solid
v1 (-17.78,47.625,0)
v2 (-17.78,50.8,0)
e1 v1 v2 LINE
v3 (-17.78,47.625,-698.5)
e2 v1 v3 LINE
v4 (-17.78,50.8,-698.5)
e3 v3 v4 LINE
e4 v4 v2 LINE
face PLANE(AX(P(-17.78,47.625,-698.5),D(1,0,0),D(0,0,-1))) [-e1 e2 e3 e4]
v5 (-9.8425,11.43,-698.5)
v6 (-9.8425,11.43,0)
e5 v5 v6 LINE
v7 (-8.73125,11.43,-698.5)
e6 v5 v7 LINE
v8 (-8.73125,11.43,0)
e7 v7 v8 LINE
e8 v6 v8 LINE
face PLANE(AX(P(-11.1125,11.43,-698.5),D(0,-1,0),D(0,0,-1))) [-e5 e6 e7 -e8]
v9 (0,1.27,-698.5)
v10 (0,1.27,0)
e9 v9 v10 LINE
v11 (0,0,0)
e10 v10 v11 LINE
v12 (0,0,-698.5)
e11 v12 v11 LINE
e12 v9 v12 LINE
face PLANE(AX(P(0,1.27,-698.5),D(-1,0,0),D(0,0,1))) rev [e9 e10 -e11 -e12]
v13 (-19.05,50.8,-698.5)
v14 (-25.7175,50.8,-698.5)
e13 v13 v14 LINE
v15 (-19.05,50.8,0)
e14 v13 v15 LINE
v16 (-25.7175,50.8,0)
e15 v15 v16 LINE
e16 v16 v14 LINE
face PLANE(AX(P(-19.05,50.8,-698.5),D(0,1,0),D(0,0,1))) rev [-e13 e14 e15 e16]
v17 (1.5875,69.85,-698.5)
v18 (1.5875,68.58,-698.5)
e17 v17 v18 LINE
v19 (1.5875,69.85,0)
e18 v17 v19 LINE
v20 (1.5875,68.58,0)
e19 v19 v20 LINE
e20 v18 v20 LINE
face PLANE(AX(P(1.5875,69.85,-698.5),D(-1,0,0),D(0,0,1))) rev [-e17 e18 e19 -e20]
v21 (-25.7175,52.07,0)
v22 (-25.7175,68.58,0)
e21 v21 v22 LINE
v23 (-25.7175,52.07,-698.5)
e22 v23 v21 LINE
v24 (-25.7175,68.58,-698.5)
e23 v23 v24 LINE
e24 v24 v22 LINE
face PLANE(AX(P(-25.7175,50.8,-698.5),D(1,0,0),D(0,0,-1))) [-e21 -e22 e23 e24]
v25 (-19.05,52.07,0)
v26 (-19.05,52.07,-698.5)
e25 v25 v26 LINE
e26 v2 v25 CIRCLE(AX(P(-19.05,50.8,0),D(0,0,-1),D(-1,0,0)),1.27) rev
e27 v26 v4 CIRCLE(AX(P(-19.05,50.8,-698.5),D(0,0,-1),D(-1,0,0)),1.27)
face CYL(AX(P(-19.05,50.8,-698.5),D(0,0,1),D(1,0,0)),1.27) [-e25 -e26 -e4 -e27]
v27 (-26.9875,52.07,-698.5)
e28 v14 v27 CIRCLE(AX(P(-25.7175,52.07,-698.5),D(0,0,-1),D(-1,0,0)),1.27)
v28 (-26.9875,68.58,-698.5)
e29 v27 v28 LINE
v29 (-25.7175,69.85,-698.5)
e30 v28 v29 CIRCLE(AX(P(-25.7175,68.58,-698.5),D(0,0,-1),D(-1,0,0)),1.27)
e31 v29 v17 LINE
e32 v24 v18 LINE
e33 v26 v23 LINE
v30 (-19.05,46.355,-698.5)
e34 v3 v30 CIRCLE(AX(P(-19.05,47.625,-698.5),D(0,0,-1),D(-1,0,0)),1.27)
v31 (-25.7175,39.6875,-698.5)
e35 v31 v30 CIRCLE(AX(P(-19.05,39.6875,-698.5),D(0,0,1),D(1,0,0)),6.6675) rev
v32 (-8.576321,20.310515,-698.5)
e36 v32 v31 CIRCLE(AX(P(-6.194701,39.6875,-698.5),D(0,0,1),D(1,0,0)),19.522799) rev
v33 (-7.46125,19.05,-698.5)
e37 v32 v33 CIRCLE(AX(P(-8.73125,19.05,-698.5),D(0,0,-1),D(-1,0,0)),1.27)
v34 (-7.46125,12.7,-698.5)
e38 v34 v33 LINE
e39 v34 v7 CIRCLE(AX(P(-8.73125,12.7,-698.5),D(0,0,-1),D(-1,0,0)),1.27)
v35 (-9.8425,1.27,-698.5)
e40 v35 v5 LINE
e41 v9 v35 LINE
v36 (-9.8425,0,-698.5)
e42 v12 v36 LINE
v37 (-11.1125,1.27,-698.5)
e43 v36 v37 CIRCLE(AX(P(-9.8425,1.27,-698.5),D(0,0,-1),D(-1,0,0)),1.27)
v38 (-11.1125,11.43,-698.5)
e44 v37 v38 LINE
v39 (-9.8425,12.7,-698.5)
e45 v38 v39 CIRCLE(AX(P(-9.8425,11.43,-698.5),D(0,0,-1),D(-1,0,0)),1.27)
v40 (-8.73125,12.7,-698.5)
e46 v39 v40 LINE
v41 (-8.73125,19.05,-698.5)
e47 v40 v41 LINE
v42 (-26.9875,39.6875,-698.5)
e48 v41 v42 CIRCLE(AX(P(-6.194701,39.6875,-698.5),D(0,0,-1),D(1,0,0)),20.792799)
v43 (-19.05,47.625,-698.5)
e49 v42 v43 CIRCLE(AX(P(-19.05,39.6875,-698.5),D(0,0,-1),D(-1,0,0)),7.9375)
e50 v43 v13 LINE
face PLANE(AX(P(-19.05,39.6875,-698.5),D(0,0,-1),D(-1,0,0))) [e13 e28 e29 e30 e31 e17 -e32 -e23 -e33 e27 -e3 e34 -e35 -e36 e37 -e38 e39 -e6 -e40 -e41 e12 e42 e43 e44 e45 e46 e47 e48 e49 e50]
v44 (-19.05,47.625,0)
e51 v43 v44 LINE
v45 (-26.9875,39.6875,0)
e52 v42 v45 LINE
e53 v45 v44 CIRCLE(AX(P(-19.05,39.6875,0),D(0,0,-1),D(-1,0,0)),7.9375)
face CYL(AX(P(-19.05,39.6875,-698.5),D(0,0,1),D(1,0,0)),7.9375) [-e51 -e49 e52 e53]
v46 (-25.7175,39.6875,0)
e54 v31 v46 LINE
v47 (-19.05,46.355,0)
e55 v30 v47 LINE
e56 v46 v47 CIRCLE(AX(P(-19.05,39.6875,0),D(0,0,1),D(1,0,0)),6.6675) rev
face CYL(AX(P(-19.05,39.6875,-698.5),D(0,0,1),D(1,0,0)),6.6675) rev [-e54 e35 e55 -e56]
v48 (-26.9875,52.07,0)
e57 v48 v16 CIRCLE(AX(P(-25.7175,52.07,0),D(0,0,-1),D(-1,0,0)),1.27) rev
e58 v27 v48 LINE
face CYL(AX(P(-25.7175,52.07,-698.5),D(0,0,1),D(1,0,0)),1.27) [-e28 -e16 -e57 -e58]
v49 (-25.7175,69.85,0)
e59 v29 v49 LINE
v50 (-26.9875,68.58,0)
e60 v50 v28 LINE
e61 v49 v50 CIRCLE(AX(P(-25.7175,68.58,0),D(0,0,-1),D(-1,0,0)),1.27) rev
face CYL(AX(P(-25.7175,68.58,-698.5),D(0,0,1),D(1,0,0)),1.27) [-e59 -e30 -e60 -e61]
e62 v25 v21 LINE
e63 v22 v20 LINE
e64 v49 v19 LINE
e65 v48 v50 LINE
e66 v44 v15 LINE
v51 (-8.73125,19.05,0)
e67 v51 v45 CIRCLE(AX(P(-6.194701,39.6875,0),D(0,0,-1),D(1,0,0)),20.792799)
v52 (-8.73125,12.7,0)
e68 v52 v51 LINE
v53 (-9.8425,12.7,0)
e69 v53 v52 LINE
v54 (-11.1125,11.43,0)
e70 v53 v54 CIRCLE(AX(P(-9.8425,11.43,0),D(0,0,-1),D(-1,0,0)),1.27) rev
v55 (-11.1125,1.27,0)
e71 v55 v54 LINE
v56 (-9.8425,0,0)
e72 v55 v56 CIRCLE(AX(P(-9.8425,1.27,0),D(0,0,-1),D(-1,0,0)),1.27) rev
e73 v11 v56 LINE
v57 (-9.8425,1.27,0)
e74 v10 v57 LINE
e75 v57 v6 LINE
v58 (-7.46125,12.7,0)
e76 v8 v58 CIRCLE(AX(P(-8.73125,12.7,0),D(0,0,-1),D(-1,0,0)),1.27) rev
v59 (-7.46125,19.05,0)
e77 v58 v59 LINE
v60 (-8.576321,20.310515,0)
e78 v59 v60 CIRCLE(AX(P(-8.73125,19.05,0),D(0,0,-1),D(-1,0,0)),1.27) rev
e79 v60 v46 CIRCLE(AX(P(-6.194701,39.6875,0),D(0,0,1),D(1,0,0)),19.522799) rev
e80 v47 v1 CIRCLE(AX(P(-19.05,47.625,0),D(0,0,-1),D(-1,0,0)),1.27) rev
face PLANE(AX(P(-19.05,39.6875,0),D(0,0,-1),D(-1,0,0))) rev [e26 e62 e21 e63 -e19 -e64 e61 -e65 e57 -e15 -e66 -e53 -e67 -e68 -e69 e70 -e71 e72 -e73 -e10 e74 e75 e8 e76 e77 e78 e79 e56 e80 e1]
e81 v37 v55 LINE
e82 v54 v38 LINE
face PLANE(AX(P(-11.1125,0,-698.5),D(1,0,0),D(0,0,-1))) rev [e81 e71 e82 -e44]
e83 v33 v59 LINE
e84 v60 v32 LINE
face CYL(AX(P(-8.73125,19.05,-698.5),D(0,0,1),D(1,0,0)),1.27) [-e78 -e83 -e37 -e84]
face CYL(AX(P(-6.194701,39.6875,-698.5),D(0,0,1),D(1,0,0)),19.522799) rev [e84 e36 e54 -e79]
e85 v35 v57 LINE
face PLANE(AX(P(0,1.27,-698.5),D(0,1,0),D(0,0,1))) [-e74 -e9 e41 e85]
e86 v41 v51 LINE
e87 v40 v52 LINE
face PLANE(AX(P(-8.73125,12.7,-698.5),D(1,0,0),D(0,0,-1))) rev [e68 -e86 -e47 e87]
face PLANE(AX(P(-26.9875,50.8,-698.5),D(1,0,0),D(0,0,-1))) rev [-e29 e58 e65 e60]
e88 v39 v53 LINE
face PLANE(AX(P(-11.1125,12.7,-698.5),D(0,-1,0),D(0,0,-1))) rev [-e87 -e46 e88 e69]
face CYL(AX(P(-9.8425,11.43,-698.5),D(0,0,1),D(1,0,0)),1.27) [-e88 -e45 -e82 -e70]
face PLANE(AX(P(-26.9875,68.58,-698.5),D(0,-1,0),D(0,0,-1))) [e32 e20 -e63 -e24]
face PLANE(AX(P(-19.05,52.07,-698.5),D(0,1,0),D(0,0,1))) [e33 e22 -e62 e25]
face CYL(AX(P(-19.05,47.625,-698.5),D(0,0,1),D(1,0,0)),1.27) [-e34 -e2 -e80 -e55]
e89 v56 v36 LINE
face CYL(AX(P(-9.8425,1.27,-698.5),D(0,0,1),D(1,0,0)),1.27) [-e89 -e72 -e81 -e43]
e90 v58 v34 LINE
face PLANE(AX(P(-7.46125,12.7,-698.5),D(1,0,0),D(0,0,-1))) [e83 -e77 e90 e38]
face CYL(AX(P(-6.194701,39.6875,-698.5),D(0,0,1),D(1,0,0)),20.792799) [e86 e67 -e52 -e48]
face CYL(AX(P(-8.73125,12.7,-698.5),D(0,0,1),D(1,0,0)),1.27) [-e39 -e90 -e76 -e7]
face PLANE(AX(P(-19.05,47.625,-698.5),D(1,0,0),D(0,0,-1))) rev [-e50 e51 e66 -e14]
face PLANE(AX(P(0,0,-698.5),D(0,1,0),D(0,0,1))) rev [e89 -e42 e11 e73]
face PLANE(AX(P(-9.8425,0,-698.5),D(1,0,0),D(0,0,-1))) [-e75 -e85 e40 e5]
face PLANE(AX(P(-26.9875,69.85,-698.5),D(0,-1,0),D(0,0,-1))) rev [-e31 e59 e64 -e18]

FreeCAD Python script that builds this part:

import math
import FreeCAD as App
import Part
import Sketcher

V = App.Vector
Q = App.Units.Quantity


def edges_at(feature, points):
    """Names of the edges that pass closest to the given points."""
    edges = feature.Shape.Edges
    near = lambda p: min(range(len(edges)), key=lambda i: edges[i].distToShape(Part.Vertex(*p))[0])
    return sorted({f"Edge{near(p) + 1}" for p in points})

doc = App.newDocument("Part")
body = doc.addObject("PartDesign::Body", "Body")

# Sketch on XY plane
sketch1 = body.newObject("Sketcher::SketchObject", "Sketch")
sketch1.AttachmentSupport = (doc.getObject("XY_Plane"), [""])
sketch1.MapMode = "FlatFace"
sketch1.addGeometry([
    Part.LineSegment(V(-11.1, 0, 0), V(0, 0, 0)),  # 0
    Part.LineSegment(V(0, 0, 0), V(0, 1.3, 0)),  # 1
    Part.LineSegment(V(0, 1.3, 0), V(-9.8, 1.3, 0)),  # 2
    Part.LineSegment(V(-9.8, 1.3, 0), V(-9.8, 11.4, 0)),  # 3
    Part.LineSegment(V(-9.8, 11.4, 0), V(-7.5, 11.4, 0)),  # 4
    Part.LineSegment(V(-7.5, 11.4, 0), V(-7.5, 20.2, 0)),  # 5
    Part.ArcOfCircle(Part.Circle(V(-6.2, 39.7, 0), V(0, 0, 1), 19.5), math.radians(-180), math.radians(-94)),  # 6
    Part.ArcOfCircle(Part.Circle(V(-19, 39.7, 0), V(0, 0, 1), 6.7), math.radians(79), math.radians(180)),  # 7
    Part.LineSegment(V(-17.8, 46.2, 0), V(-17.8, 52.1, 0)),  # 8
    Part.LineSegment(V(-17.8, 52.1, 0), V(-25.7, 52.1, 0)),  # 9
    Part.LineSegment(V(-25.7, 52.1, 0), V(-25.7, 68.6, 0)),  # 10
    Part.LineSegment(V(-25.7, 68.6, 0), V(1.6, 68.6, 0)),  # 11
    Part.LineSegment(V(1.6, 68.6, 0), V(1.6, 69.8, 0)),  # 12
    Part.LineSegment(V(1.6, 69.8, 0), V(-27, 69.8, 0)),  # 13
    Part.LineSegment(V(-27, 69.8, 0), V(-27, 50.8, 0)),  # 14
    Part.LineSegment(V(-27, 50.8, 0), V(-19.1, 50.8, 0)),  # 15
    Part.LineSegment(V(-19.1, 50.8, 0), V(-19.1, 47.6, 0)),  # 16
    Part.ArcOfCircle(Part.Circle(V(-19.1, 39.7, 0), V(0, 0, 1), 7.9), math.radians(90), math.radians(180)),  # 17
    Part.ArcOfCircle(Part.Circle(V(-6.2, 39.7, 0), V(0, 0, 1), 20.8), math.radians(180), math.radians(263)),  # 18
    Part.LineSegment(V(-8.7, 19.1, 0), V(-8.7, 12.7, 0)),  # 19
    Part.LineSegment(V(-8.7, 12.7, 0), V(-11.1, 12.7, 0)),  # 20
    Part.LineSegment(V(-11.1, 12.7, 0), V(-11.1, 0, 0)),  # 21
], False)
sketch1.addConstraint([
    Sketcher.Constraint("Coincident", 0, 2, 1, 1),
    Sketcher.Constraint("Coincident", 1, 2, 2, 1),
    Sketcher.Constraint("Coincident", 2, 2, 3, 1),
    Sketcher.Constraint("Coincident", 3, 2, 4, 1),
    Sketcher.Constraint("Coincident", 4, 2, 5, 1),
    Sketcher.Constraint("Coincident", 5, 2, 6, 2),
    Sketcher.Constraint("Tangent", 6, 1, 7, 2),
    Sketcher.Constraint("Coincident", 7, 1, 8, 1),
    Sketcher.Constraint("Coincident", 8, 2, 9, 1),
    Sketcher.Constraint("Coincident", 9, 2, 10, 1),
    Sketcher.Constraint("Coincident", 10, 2, 11, 1),
    Sketcher.Constraint("Coincident", 11, 2, 12, 1),
    Sketcher.Constraint("Coincident", 12, 2, 13, 1),
    Sketcher.Constraint("Coincident", 13, 2, 14, 1),
    Sketcher.Constraint("Coincident", 14, 2, 15, 1),
    Sketcher.Constraint("Coincident", 15, 2, 16, 1),
    Sketcher.Constraint("Coincident", 16, 2, 17, 1),
    Sketcher.Constraint("Tangent", 17, 2, 18, 1),
    Sketcher.Constraint("Coincident", 18, 2, 19, 1),
    Sketcher.Constraint("Coincident", 19, 2, 20, 1),
    Sketcher.Constraint("Coincident", 20, 2, 21, 1),
    Sketcher.Constraint("Coincident", 21, 2, 0, 1),
    Sketcher.Constraint("Horizontal", 0),
    Sketcher.Constraint("Vertical", 1),
    Sketcher.Constraint("Horizontal", 2),
    Sketcher.Constraint("Vertical", 3),
    Sketcher.Constraint("Horizontal", 4),
    Sketcher.Constraint("Vertical", 5),
    Sketcher.Constraint("Vertical", 8),
    Sketcher.Constraint("Horizontal", 9),
    Sketcher.Constraint("Vertical", 10),
    Sketcher.Constraint("Horizontal", 11),
    Sketcher.Constraint("Vertical", 12),
    Sketcher.Constraint("Horizontal", 13),
    Sketcher.Constraint("Vertical", 14),
    Sketcher.Constraint("Horizontal", 15),
    Sketcher.Constraint("Vertical", 16),
    Sketcher.Constraint("Vertical", 19),
    Sketcher.Constraint("Horizontal", 20),
    Sketcher.Constraint("Vertical", 21),
    Sketcher.Constraint("Coincident", 0, 2, -1, 1),
    Sketcher.Constraint("Coincident", 17, 3, 7, 3),
    Sketcher.Constraint("Coincident", 18, 3, 6, 3),
    Sketcher.Constraint("Horizontal", 6, 3, 7, 3),
    Sketcher.Constraint("Vertical", 6, 1, 9, 2),
    Sketcher.Constraint("Vertical", 17, 3, 15, 2),
    Sketcher.Constraint("Vertical", 14, 2, 17, 2),
    Sketcher.Constraint("Equal", 9, 15),
    Sketcher.Constraint("Equal", 4, 20),
    Sketcher.Constraint("Equal", 1, 12),
    Sketcher.Constraint("DistanceY", 3, 1, 3, 2, Q("0.4 in")),
    Sketcher.Constraint("DistanceY", 21, 2, 21, 1, Q("0.5 in")),
    Sketcher.Constraint("DistanceY", -1, 1, 14, 2, Q("2 in")),
    Sketcher.Constraint("Radius", 17, Q("0.3125 in")),
    Sketcher.Constraint("DistanceY", 1, 1, 1, 2, Q("0.05 in")),
    Sketcher.Constraint("DistanceY", 10, 1, 10, 2, Q("0.65 in")),
    Sketcher.Constraint("DistanceY", 14, 2, 14, 1, Q("0.75 in")),
    Sketcher.Constraint("DistanceY", 19, 2, 19, 1, Q("0.25 in")),
    Sketcher.Constraint("DistanceX", 7, 1, -1, 1, Q("0.7 in")),
    Sketcher.Constraint("Radius", 7, Q("0.2625 in")),
    Sketcher.Constraint("DistanceX", 0, 1, 0, 2, Q("0.4375 in")),
    Sketcher.Constraint("DistanceX", 4, 1, 4, 2, Q("0.09375 in")),
    Sketcher.Constraint("DistanceX", 11, 1, 11, 2, Q("1.075 in")),
    Sketcher.Constraint("DistanceY", 16, 2, 16, 1, Q("0.125 in")),
    Sketcher.Constraint("DistanceX", 18, 2, 5, 2, Q("0.05 in")),
])
pad1 = body.newObject("PartDesign::Pad", "Pad")
pad1.Profile = sketch1
pad1.Length = Q("27.5 in")
pad1.Reversed = True
doc.recompute()

fillet = body.newObject("PartDesign::Fillet", "Fillet")
fillet.Base = (pad1, edges_at(pad1, [
    (-17.78, 52.07, -349.25),
    (-17.78, 46.233, -349.25),
    (-7.461, 20.206, -349.25),
    (-7.461, 11.43, -349.25),
    (-11.113, 0, -349.25),
    (-11.113, 12.7, -349.25),
    (-26.988, 50.8, -349.25),
    (-26.988, 69.85, -349.25),
]))
fillet.Radius = Q("0.05 in")

doc.recompute()
